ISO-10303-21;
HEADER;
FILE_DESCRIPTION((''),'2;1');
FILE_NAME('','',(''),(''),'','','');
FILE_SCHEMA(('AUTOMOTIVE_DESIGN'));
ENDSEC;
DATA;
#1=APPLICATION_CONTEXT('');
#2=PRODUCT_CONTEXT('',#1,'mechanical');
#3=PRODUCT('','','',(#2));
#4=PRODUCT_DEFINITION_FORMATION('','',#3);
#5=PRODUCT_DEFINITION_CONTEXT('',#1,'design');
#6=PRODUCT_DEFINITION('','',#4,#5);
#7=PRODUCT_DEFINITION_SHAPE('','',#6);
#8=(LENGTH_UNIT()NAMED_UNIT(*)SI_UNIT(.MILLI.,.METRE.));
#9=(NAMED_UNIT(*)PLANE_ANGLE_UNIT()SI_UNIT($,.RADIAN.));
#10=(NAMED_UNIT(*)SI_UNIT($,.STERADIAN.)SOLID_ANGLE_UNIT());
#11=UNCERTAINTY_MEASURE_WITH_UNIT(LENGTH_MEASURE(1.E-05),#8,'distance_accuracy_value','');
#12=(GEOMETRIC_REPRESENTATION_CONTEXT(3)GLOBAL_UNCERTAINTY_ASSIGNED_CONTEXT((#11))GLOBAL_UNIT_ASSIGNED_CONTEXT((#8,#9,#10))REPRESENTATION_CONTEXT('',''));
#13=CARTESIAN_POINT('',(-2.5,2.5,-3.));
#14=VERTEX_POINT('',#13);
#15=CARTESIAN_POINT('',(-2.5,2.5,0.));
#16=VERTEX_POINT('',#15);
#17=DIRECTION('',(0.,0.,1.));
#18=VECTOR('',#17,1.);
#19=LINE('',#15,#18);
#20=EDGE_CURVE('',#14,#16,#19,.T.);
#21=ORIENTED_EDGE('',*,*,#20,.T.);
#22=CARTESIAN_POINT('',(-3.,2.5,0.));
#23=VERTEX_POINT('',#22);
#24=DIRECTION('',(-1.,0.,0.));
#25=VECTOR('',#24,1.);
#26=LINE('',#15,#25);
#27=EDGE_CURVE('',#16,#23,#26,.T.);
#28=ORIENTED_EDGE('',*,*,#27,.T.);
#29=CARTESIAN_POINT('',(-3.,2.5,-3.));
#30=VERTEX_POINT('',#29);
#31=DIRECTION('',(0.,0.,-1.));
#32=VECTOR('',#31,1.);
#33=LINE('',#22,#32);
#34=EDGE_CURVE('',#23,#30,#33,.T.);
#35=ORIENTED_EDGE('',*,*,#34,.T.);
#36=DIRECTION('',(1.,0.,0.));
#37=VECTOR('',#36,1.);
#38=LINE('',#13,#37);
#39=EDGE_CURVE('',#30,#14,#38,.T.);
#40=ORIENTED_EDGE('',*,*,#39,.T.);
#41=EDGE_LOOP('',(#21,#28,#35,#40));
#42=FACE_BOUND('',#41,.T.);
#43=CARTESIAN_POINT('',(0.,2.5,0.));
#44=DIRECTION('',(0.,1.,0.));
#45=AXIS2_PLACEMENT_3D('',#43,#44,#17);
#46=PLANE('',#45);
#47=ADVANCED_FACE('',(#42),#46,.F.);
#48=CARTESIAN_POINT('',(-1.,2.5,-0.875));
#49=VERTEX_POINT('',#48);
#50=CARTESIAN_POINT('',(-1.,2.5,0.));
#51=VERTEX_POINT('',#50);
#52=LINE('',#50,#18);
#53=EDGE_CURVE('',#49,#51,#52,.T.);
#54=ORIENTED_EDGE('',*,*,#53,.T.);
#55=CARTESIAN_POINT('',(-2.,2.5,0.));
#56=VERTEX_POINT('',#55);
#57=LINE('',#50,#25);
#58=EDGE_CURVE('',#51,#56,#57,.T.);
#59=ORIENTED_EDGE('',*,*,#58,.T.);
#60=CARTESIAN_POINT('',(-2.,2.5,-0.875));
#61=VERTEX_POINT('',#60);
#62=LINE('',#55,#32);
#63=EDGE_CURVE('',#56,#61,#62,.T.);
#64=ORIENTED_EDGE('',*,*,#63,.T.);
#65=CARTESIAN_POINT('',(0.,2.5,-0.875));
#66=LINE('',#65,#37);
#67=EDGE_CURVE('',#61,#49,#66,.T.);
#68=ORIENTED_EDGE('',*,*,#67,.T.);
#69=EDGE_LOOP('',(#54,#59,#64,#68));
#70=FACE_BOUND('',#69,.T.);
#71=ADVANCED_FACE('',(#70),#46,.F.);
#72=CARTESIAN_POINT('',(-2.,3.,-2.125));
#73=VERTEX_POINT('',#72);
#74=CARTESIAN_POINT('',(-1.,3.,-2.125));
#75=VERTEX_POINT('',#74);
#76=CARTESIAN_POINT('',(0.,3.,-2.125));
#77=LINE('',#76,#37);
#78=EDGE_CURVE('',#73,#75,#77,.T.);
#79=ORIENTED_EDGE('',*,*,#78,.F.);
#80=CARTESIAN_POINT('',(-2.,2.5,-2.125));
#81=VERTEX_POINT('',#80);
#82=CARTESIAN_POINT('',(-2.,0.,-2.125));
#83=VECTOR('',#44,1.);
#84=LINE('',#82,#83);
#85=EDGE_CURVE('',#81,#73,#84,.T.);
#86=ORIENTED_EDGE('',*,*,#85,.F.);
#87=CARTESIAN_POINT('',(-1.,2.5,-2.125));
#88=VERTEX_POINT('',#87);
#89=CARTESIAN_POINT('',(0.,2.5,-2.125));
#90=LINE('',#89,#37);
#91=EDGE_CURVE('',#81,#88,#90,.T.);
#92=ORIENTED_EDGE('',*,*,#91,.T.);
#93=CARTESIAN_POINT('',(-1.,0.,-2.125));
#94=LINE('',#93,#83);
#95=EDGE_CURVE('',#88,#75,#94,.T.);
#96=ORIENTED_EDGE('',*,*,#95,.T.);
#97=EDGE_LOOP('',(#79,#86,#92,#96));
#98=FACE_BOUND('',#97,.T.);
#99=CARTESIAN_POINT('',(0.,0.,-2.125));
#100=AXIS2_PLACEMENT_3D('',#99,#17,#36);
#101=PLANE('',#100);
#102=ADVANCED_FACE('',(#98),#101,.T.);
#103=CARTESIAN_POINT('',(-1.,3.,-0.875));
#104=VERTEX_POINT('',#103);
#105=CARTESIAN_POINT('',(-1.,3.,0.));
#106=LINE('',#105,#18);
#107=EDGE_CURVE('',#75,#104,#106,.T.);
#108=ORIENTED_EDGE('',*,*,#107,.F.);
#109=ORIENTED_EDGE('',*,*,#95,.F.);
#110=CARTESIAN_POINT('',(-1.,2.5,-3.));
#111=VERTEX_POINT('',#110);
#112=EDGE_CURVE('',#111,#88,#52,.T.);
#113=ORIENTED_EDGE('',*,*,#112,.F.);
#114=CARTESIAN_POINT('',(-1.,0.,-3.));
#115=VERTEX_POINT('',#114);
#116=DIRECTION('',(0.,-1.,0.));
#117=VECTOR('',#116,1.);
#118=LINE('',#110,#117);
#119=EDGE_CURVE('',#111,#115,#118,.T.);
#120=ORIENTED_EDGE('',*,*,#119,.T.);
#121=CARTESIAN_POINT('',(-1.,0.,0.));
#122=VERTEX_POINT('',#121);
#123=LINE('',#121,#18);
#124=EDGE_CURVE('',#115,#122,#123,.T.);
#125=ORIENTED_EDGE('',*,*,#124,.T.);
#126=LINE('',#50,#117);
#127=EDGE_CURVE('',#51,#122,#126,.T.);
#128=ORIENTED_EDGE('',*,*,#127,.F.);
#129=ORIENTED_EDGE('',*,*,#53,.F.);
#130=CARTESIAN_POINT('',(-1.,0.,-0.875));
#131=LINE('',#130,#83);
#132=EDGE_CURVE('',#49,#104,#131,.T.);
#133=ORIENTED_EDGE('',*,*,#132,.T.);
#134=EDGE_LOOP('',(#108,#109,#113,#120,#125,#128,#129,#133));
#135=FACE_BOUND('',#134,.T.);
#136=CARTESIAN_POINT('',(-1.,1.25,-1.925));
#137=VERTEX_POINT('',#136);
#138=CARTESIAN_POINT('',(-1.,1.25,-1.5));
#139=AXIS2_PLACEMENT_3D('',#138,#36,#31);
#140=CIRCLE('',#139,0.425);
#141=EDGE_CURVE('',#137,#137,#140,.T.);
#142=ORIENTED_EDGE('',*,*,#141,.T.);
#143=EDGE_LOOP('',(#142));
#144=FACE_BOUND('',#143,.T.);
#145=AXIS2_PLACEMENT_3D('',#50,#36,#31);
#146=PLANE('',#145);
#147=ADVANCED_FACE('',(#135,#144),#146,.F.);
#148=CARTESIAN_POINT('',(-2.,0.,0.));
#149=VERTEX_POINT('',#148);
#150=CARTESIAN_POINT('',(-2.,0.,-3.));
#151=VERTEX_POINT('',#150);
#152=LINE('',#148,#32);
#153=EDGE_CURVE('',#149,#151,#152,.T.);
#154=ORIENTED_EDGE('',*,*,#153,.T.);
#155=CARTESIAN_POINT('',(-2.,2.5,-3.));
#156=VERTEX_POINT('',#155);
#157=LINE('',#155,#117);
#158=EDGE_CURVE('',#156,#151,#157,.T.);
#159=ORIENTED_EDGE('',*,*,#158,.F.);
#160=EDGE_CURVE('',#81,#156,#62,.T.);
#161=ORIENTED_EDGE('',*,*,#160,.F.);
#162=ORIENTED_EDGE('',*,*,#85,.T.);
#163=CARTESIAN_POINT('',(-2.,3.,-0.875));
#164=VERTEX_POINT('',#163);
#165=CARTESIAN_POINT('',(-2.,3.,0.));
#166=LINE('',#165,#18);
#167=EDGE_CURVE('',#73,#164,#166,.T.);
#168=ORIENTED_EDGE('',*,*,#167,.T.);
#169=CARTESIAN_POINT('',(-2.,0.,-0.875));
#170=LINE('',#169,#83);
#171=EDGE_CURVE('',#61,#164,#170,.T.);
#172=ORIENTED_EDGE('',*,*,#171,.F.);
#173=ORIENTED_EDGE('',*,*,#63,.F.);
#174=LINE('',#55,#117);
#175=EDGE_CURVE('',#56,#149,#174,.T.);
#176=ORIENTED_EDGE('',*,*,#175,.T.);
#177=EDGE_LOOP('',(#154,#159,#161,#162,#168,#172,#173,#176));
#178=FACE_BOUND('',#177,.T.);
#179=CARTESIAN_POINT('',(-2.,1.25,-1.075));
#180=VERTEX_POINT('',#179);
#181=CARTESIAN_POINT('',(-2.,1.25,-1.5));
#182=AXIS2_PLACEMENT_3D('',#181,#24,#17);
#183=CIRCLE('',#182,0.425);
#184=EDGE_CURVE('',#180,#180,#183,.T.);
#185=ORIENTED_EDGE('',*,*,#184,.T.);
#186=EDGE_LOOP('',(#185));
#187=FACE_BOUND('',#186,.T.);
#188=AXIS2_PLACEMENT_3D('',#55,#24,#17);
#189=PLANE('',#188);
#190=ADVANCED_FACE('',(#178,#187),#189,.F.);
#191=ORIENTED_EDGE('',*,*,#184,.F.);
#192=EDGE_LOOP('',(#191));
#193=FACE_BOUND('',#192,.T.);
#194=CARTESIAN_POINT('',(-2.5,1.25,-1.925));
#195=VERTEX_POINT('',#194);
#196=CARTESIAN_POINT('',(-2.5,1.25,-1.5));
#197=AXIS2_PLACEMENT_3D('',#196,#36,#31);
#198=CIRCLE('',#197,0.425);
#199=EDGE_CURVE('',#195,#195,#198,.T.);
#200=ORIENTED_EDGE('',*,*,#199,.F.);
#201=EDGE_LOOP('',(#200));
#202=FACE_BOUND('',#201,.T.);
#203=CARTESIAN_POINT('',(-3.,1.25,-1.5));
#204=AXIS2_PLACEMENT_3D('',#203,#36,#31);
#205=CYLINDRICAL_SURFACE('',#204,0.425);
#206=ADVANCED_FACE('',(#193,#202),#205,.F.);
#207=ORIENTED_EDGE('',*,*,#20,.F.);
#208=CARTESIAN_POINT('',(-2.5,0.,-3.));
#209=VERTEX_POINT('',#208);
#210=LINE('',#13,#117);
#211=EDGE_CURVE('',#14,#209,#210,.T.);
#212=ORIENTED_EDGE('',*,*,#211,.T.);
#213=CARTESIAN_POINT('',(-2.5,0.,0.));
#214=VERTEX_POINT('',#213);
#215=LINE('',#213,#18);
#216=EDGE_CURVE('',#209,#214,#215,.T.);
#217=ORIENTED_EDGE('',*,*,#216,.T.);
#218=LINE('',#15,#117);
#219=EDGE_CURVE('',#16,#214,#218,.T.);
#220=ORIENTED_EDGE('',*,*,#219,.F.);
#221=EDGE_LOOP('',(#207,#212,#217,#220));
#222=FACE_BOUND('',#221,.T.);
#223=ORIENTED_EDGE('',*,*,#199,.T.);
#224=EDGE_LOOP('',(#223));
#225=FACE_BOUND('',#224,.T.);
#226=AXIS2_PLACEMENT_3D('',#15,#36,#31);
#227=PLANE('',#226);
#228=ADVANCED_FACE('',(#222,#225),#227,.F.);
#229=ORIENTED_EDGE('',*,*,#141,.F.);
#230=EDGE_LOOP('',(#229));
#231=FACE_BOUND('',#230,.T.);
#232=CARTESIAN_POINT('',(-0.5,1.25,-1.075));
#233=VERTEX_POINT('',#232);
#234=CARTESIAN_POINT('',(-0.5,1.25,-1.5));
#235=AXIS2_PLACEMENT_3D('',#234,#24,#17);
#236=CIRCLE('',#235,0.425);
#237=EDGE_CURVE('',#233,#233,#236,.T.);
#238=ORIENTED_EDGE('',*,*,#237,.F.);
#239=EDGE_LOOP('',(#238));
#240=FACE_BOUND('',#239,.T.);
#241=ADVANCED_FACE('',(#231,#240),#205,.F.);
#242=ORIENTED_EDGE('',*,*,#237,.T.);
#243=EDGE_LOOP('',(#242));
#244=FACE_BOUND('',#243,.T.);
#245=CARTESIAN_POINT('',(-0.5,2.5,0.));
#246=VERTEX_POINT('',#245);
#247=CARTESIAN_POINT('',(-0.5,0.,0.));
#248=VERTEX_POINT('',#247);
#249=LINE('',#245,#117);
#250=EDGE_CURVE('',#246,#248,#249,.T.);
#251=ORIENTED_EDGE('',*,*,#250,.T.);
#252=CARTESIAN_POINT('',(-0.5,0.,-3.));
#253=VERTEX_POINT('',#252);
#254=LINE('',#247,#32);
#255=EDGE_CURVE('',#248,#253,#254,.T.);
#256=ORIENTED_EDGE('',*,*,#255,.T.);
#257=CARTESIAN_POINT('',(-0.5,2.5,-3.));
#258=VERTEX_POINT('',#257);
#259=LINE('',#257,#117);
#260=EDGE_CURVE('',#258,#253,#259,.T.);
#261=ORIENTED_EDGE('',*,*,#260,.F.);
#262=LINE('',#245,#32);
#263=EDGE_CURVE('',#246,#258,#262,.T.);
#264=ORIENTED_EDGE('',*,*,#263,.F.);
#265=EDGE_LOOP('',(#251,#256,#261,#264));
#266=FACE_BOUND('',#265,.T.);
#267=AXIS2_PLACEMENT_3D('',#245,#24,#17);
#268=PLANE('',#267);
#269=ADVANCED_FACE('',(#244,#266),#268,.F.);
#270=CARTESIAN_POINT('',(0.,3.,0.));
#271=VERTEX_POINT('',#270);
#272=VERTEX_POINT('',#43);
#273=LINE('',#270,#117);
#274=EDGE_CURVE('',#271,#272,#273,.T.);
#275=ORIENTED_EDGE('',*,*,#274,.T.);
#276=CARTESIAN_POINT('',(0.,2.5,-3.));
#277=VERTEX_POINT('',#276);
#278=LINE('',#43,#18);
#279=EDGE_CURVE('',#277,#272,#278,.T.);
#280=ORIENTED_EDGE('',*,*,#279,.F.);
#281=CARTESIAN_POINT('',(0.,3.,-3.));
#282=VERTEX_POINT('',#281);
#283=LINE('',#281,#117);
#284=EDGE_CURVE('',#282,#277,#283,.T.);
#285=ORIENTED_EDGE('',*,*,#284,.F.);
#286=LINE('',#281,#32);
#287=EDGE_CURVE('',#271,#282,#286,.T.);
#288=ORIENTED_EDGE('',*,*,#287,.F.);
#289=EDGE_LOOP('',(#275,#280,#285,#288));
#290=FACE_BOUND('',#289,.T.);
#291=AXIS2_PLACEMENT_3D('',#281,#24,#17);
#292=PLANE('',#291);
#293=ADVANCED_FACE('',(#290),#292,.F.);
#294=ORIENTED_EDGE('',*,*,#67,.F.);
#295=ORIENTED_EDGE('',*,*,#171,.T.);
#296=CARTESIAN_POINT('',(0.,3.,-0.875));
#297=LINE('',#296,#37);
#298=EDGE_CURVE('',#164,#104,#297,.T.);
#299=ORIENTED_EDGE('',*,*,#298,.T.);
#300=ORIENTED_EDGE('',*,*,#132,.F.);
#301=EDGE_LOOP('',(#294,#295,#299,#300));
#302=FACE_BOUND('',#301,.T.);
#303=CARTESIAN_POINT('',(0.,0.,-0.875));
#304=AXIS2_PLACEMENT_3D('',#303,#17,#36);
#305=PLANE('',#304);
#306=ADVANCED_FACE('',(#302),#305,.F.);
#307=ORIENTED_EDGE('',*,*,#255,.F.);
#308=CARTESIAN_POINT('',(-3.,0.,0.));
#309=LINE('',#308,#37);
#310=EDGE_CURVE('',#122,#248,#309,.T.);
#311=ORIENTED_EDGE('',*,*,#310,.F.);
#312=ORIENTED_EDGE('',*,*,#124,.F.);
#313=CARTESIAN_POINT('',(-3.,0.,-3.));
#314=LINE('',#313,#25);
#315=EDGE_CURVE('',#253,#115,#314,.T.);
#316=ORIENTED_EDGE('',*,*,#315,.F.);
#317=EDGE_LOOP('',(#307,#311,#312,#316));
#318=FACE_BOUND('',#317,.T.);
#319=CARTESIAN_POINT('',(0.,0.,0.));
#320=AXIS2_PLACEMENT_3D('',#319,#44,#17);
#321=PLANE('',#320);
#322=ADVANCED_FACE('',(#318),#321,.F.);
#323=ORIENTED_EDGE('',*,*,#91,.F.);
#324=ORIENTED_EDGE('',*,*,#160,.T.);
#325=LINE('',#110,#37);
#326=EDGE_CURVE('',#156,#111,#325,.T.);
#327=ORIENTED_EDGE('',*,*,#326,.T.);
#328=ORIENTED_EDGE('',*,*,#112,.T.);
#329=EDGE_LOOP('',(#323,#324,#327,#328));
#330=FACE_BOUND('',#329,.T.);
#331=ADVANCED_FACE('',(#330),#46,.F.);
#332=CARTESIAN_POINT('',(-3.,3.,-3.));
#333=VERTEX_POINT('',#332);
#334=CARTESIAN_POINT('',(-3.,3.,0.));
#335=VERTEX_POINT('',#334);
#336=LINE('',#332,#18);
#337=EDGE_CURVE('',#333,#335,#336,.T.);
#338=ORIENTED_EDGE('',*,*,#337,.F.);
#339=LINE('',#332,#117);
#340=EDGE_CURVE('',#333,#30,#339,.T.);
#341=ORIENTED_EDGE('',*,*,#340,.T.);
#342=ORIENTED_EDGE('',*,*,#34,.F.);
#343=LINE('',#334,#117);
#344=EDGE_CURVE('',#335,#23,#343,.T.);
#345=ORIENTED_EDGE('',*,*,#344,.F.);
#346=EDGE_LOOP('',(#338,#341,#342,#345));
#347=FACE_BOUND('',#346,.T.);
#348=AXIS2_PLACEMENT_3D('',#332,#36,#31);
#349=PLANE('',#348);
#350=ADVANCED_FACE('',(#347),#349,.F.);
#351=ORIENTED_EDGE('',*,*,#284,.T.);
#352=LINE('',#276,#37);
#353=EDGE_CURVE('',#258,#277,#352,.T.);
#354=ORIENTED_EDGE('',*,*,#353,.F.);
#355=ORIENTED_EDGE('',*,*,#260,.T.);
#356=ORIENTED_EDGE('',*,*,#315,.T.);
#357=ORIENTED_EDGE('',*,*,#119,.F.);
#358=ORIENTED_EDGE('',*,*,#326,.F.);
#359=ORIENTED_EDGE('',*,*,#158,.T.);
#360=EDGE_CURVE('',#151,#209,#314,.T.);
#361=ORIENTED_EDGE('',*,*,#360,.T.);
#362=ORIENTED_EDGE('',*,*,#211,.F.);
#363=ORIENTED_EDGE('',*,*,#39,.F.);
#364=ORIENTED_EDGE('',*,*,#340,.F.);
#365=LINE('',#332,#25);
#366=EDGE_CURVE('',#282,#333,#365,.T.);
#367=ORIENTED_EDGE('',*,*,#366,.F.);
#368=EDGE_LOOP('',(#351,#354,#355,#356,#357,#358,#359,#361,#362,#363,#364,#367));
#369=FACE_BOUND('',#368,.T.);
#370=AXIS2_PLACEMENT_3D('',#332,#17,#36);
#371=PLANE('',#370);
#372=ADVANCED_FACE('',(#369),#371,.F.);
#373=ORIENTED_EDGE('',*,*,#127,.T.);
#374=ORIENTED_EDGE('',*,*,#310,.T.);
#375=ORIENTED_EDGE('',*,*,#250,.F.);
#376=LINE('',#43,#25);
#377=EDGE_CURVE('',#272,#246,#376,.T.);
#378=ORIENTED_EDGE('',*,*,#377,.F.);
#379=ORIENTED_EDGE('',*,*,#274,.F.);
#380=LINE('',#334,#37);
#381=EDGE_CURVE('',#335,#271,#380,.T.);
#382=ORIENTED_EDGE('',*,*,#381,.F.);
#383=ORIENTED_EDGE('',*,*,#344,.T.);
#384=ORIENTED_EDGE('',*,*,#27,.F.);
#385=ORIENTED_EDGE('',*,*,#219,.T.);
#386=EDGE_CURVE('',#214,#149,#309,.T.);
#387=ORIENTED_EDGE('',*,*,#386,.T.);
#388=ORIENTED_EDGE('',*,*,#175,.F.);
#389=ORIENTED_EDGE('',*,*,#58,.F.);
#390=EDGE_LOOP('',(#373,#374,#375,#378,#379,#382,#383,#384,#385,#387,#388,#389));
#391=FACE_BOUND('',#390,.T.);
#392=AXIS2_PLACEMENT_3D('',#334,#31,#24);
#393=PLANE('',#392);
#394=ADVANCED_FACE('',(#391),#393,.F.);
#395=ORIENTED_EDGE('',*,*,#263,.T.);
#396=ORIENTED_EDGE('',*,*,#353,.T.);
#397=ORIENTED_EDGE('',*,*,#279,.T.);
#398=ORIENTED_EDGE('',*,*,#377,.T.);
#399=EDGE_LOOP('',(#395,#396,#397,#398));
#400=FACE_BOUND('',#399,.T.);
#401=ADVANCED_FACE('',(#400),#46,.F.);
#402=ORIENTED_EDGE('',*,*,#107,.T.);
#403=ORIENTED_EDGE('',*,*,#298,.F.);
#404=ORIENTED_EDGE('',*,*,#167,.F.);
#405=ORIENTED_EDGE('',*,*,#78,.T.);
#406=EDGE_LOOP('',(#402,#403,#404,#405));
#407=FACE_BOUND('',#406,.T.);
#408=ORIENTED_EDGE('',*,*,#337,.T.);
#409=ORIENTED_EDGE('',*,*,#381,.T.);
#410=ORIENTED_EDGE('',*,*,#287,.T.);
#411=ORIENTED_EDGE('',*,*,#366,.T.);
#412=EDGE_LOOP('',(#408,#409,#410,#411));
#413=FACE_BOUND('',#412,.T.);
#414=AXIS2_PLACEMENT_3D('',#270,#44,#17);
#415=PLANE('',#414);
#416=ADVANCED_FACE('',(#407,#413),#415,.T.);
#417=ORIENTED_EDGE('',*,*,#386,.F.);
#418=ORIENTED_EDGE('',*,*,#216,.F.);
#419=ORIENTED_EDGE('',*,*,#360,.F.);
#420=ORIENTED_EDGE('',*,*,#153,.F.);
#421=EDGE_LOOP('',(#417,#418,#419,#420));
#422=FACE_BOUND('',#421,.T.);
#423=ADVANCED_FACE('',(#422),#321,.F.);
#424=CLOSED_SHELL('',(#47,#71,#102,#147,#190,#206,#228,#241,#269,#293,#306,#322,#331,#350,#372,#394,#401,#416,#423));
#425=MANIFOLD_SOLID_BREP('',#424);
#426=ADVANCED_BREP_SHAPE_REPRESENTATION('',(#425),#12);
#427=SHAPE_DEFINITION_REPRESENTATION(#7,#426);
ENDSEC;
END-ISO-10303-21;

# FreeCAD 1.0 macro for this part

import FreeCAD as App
import Part
import Sketcher

V = App.Vector
Q = App.Units.Quantity


def add_polygon(sketch, points):
    """Adds a closed chain of lines whose ends are joined by coincident constraints."""
    first, n = sketch.GeometryCount, len(points)
    for a, b in zip(points, points[1:] + points[:1]):
        sketch.addGeometry(Part.LineSegment(App.Vector(*a, 0), App.Vector(*b, 0)), False)
    for i in range(n):
        sketch.addConstraint(Sketcher.Constraint("Coincident", first + i, 2, first + (i + 1) % n, 1))

doc = App.newDocument("Part")
body = doc.addObject("PartDesign::Body", "Body")

# Sketch on XZ plane
sketch1 = body.newObject("Sketcher::SketchObject", "Sketch")
sketch1.AttachmentSupport = (doc.getObject("XZ_Plane"), [""])
sketch1.MapMode = "FlatFace"
add_polygon(sketch1, [(-3, -3), (-3, 0), (0, 0), (0, -3)])  # lines 0-3
sketch1.addConstraint(Sketcher.Constraint("Vertical", 0))
sketch1.addConstraint(Sketcher.Constraint("Horizontal", 1))
sketch1.addConstraint(Sketcher.Constraint("Vertical", 2))
sketch1.addConstraint(Sketcher.Constraint("Horizontal", 3))
sketch1.addConstraint(Sketcher.Constraint("Coincident", 1, 2, -1, 1))
sketch1.addConstraint(Sketcher.Constraint("Equal", 3, 0))
sketch1.addConstraint(Sketcher.Constraint("DistanceX", 1, 1, 1, 2, Q("3 mm")))
pad1 = body.newObject("PartDesign::Pad", "Pad")
pad1.Profile = sketch1
pad1.Length = 3
pad1.Reversed = True

# Sketch on XZ plane
sketch2 = body.newObject("Sketcher::SketchObject", "Sketch001")
sketch2.AttachmentSupport = (doc.getObject("XZ_Plane"), [""])
sketch2.MapMode = "FlatFace"
add_polygon(sketch2, [(-1, -3), (-1, 0), (-2, 0), (-2, -3)])  # lines 0-3
add_polygon(sketch2, [(0, -3), (0, 0), (-0.5, 0), (-0.5, -3)])  # lines 4-7
add_polygon(sketch2, [(-2.5, -3), (-2.5, 0), (-3, 0), (-3, -3)])  # lines 8-11
sketch2.addConstraint(Sketcher.Constraint("Vertical", 0))
sketch2.addConstraint(Sketcher.Constraint("Horizontal", 1))
sketch2.addConstraint(Sketcher.Constraint("Vertical", 2))
sketch2.addConstraint(Sketcher.Constraint("Horizontal", 3))
sketch2.addConstraint(Sketcher.Constraint("Vertical", 4))
sketch2.addConstraint(Sketcher.Constraint("Horizontal", 5))
sketch2.addConstraint(Sketcher.Constraint("Vertical", 6))
sketch2.addConstraint(Sketcher.Constraint("Horizontal", 7))
sketch2.addConstraint(Sketcher.Constraint("Vertical", 8))
sketch2.addConstraint(Sketcher.Constraint("Horizontal", 9))
sketch2.addConstraint(Sketcher.Constraint("Vertical", 10))
sketch2.addConstraint(Sketcher.Constraint("Horizontal", 11))
sketch2.addConstraint(Sketcher.Constraint("Coincident", 4, 2, -1, 1))
sketch2.addConstraint(Sketcher.Constraint("PointOnObject", 0, 2, -1))
sketch2.addConstraint(Sketcher.Constraint("PointOnObject", 8, 2, -1))
sketch2.addConstraint(Sketcher.Constraint("Horizontal", 3, 2, 6, 2))
sketch2.addConstraint(Sketcher.Constraint("Horizontal", 7, 2, 10, 2))
sketch2.addConstraint(Sketcher.Constraint("Equal", 7, 9))
sketch2.addConstraint(Sketcher.Constraint("DistanceX", 1, 2, 1, 1, Q("1 mm")))
sketch2.addConstraint(Sketcher.Constraint("DistanceY", 0, 1, 0, 2, Q("3 mm")))
sketch2.addConstraint(Sketcher.Constraint("DistanceX", 5, 2, 5, 1, Q("0.5 mm")))
sketch2.addConstraint(Sketcher.Constraint("DistanceX", 0, 2, -1, 1, Q("1 mm")))
sketch2.addConstraint(Sketcher.Constraint("DistanceX", 9, 2, -1, 1, Q("3 mm")))
pocket1 = body.newObject("PartDesign::Pocket", "Pocket")
pocket1.Profile = sketch2
pocket1.Length = 2.5

# Sketch on YZ plane
sketch3 = body.newObject("Sketcher::SketchObject", "Sketch002")
sketch3.AttachmentSupport = (doc.getObject("YZ_Plane"), [""])
sketch3.MapMode = "FlatFace"
sketch3.AttachmentOffset = App.Placement(V(0, 0, -0.5), App.Rotation())
sketch3.addGeometry(Part.Circle(V(1.25, -1.5, 0), V(0, 0, 1), 0.42), False)
sketch3.addConstraint(Sketcher.Constraint("Diameter", 0, Q("0.85 mm")))
sketch3.addConstraint(Sketcher.Constraint("DistanceY", 0, 3, -1, 1, Q("1.5 mm")))
sketch3.addConstraint(Sketcher.Constraint("DistanceX", -1, 1, 0, 3, Q("1.25 mm")))
pocket2 = body.newObject("PartDesign::Pocket", "Pocket001")
pocket2.Profile = sketch3
pocket2.Type = "ThroughAll"
pocket2.Midplane = True

# Sketch on XZ plane
sketch4 = body.newObject("Sketcher::SketchObject", "Sketch003")
sketch4.AttachmentSupport = (doc.getObject("XZ_Plane"), [""])
sketch4.MapMode = "FlatFace"
sketch4.AttachmentOffset = App.Placement(V(0, 0, -3), App.Rotation())
add_polygon(sketch4, [(-2, -2.1), (-2, -0.9), (-1, -0.9), (-1, -2.1)])  # lines 0-3
sketch4.addConstraint(Sketcher.Constraint("Vertical", 0))
sketch4.addConstraint(Sketcher.Constraint("Horizontal", 1))
sketch4.addConstraint(Sketcher.Constraint("Vertical", 2))
sketch4.addConstraint(Sketcher.Constraint("Horizontal", 3))
sketch4.addConstraint(Sketcher.Constraint("DistanceX", 1, 1, 1, 2, Q("1 mm")))
sketch4.addConstraint(Sketcher.Constraint("DistanceX", 0, 2, -1, 1, Q("2 mm")))
sketch4.addConstraint(Sketcher.Constraint("DistanceY", 0, 1, 0, 2, Q("1.25 mm")))
sketch4.addConstraint(Sketcher.Constraint("DistanceY", 0, 2, -1, 1, Q("0.875 mm")))
pocket3 = body.newObject("PartDesign::Pocket", "Pocket002")
pocket3.Profile = sketch4
pocket3.Type = "ThroughAll"
pocket3.Midplane = True

doc.recompute()
